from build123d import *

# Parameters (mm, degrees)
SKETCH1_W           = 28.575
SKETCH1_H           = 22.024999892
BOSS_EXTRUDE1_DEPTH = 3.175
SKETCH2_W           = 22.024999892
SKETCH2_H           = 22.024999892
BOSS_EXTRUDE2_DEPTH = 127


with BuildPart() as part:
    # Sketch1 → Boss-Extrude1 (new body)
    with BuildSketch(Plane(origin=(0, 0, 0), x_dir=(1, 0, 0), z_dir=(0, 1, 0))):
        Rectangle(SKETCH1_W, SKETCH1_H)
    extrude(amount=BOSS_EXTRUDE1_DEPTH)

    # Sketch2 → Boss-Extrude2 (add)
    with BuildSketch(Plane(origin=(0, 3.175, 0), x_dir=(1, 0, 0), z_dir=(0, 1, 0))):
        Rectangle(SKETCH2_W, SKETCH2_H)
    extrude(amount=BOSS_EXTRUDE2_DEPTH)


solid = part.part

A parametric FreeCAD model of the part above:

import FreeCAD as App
import Part
import Sketcher
from FreeCAD import Vector
Q = App.Units.Quantity

doc = App.newDocument("Part")
body = doc.addObject("PartDesign::Body", "Body")

sketch1 = body.newObject("Sketcher::SketchObject", "Sketch")
sketch1.AttachmentSupport = (doc.getObject("XZ_Plane"), [""])
sketch1.MapMode = "FlatFace"
sketch1.addGeometry([
    Part.LineSegment(Vector(-14, -11, 0), Vector(-14, 11, 0)),
    Part.LineSegment(Vector(-14, 11, 0), Vector(14, 11, 0)),
    Part.LineSegment(Vector(14, 11, 0), Vector(14, -11, 0)),
    Part.LineSegment(Vector(14, -11, 0), Vector(-14, -11, 0)),
], False)
sketch1.addConstraint([
    Sketcher.Constraint("Coincident", 0, 2, 1, 1),
    Sketcher.Constraint("Coincident", 1, 2, 2, 1),
    Sketcher.Constraint("Coincident", 2, 2, 3, 1),
    Sketcher.Constraint("Coincident", 3, 2, 0, 1),
    Sketcher.Constraint("Vertical", 0),
    Sketcher.Constraint("Horizontal", 1),
    Sketcher.Constraint("Vertical", 2),
    Sketcher.Constraint("Horizontal", 3),
    Sketcher.Constraint("Symmetric", 0, 2, 2, 2, -1, 1),
    Sketcher.Constraint("DistanceX", 1, 1, 1, 2, Q("1.125 in")),
    Sketcher.Constraint("DistanceY", 0, 1, 0, 2, 22.025),
])
pad1 = body.newObject("PartDesign::Pad", "Pad")
pad1.Profile = sketch1
pad1.Length = Q("0.125 in")
pad1.Reversed = True

sketch2 = body.newObject("Sketcher::SketchObject", "Sketch001")
sketch2.AttachmentSupport = (doc.getObject("XZ_Plane"), [""])
sketch2.MapMode = "FlatFace"
sketch2.AttachmentOffset = App.Placement(Vector(0, 0, -0.125 * 25.4), App.Rotation())
sketch2.addGeometry([
    Part.LineSegment(Vector(-11, -11, 0), Vector(-11, 11, 0)),
    Part.LineSegment(Vector(-11, 11, 0), Vector(11, 11, 0)),
    Part.LineSegment(Vector(11, 11, 0), Vector(11, -11, 0)),
    Part.LineSegment(Vector(11, -11, 0), Vector(-11, -11, 0)),
], False)
sketch2.addConstraint([
    Sketcher.Constraint("Coincident", 0, 2, 1, 1),
    Sketcher.Constraint("Coincident", 1, 2, 2, 1),
    Sketcher.Constraint("Coincident", 2, 2, 3, 1),
    Sketcher.Constraint("Coincident", 3, 2, 0, 1),
    Sketcher.Constraint("Vertical", 0),
    Sketcher.Constraint("Horizontal", 1),
    Sketcher.Constraint("Vertical", 2),
    Sketcher.Constraint("Horizontal", 3),
    Sketcher.Constraint("Symmetric", 0, 2, 2, 2, -1, 1),
    Sketcher.Constraint("Equal", 3, 0),
    Sketcher.Constraint("DistanceX", 1, 1, 1, 2, 22.025),
])
pad2 = body.newObject("PartDesign::Pad", "Pad001")
pad2.Profile = sketch2
pad2.Length = Q("5 in")
pad2.Reversed = True

doc.recompute()
